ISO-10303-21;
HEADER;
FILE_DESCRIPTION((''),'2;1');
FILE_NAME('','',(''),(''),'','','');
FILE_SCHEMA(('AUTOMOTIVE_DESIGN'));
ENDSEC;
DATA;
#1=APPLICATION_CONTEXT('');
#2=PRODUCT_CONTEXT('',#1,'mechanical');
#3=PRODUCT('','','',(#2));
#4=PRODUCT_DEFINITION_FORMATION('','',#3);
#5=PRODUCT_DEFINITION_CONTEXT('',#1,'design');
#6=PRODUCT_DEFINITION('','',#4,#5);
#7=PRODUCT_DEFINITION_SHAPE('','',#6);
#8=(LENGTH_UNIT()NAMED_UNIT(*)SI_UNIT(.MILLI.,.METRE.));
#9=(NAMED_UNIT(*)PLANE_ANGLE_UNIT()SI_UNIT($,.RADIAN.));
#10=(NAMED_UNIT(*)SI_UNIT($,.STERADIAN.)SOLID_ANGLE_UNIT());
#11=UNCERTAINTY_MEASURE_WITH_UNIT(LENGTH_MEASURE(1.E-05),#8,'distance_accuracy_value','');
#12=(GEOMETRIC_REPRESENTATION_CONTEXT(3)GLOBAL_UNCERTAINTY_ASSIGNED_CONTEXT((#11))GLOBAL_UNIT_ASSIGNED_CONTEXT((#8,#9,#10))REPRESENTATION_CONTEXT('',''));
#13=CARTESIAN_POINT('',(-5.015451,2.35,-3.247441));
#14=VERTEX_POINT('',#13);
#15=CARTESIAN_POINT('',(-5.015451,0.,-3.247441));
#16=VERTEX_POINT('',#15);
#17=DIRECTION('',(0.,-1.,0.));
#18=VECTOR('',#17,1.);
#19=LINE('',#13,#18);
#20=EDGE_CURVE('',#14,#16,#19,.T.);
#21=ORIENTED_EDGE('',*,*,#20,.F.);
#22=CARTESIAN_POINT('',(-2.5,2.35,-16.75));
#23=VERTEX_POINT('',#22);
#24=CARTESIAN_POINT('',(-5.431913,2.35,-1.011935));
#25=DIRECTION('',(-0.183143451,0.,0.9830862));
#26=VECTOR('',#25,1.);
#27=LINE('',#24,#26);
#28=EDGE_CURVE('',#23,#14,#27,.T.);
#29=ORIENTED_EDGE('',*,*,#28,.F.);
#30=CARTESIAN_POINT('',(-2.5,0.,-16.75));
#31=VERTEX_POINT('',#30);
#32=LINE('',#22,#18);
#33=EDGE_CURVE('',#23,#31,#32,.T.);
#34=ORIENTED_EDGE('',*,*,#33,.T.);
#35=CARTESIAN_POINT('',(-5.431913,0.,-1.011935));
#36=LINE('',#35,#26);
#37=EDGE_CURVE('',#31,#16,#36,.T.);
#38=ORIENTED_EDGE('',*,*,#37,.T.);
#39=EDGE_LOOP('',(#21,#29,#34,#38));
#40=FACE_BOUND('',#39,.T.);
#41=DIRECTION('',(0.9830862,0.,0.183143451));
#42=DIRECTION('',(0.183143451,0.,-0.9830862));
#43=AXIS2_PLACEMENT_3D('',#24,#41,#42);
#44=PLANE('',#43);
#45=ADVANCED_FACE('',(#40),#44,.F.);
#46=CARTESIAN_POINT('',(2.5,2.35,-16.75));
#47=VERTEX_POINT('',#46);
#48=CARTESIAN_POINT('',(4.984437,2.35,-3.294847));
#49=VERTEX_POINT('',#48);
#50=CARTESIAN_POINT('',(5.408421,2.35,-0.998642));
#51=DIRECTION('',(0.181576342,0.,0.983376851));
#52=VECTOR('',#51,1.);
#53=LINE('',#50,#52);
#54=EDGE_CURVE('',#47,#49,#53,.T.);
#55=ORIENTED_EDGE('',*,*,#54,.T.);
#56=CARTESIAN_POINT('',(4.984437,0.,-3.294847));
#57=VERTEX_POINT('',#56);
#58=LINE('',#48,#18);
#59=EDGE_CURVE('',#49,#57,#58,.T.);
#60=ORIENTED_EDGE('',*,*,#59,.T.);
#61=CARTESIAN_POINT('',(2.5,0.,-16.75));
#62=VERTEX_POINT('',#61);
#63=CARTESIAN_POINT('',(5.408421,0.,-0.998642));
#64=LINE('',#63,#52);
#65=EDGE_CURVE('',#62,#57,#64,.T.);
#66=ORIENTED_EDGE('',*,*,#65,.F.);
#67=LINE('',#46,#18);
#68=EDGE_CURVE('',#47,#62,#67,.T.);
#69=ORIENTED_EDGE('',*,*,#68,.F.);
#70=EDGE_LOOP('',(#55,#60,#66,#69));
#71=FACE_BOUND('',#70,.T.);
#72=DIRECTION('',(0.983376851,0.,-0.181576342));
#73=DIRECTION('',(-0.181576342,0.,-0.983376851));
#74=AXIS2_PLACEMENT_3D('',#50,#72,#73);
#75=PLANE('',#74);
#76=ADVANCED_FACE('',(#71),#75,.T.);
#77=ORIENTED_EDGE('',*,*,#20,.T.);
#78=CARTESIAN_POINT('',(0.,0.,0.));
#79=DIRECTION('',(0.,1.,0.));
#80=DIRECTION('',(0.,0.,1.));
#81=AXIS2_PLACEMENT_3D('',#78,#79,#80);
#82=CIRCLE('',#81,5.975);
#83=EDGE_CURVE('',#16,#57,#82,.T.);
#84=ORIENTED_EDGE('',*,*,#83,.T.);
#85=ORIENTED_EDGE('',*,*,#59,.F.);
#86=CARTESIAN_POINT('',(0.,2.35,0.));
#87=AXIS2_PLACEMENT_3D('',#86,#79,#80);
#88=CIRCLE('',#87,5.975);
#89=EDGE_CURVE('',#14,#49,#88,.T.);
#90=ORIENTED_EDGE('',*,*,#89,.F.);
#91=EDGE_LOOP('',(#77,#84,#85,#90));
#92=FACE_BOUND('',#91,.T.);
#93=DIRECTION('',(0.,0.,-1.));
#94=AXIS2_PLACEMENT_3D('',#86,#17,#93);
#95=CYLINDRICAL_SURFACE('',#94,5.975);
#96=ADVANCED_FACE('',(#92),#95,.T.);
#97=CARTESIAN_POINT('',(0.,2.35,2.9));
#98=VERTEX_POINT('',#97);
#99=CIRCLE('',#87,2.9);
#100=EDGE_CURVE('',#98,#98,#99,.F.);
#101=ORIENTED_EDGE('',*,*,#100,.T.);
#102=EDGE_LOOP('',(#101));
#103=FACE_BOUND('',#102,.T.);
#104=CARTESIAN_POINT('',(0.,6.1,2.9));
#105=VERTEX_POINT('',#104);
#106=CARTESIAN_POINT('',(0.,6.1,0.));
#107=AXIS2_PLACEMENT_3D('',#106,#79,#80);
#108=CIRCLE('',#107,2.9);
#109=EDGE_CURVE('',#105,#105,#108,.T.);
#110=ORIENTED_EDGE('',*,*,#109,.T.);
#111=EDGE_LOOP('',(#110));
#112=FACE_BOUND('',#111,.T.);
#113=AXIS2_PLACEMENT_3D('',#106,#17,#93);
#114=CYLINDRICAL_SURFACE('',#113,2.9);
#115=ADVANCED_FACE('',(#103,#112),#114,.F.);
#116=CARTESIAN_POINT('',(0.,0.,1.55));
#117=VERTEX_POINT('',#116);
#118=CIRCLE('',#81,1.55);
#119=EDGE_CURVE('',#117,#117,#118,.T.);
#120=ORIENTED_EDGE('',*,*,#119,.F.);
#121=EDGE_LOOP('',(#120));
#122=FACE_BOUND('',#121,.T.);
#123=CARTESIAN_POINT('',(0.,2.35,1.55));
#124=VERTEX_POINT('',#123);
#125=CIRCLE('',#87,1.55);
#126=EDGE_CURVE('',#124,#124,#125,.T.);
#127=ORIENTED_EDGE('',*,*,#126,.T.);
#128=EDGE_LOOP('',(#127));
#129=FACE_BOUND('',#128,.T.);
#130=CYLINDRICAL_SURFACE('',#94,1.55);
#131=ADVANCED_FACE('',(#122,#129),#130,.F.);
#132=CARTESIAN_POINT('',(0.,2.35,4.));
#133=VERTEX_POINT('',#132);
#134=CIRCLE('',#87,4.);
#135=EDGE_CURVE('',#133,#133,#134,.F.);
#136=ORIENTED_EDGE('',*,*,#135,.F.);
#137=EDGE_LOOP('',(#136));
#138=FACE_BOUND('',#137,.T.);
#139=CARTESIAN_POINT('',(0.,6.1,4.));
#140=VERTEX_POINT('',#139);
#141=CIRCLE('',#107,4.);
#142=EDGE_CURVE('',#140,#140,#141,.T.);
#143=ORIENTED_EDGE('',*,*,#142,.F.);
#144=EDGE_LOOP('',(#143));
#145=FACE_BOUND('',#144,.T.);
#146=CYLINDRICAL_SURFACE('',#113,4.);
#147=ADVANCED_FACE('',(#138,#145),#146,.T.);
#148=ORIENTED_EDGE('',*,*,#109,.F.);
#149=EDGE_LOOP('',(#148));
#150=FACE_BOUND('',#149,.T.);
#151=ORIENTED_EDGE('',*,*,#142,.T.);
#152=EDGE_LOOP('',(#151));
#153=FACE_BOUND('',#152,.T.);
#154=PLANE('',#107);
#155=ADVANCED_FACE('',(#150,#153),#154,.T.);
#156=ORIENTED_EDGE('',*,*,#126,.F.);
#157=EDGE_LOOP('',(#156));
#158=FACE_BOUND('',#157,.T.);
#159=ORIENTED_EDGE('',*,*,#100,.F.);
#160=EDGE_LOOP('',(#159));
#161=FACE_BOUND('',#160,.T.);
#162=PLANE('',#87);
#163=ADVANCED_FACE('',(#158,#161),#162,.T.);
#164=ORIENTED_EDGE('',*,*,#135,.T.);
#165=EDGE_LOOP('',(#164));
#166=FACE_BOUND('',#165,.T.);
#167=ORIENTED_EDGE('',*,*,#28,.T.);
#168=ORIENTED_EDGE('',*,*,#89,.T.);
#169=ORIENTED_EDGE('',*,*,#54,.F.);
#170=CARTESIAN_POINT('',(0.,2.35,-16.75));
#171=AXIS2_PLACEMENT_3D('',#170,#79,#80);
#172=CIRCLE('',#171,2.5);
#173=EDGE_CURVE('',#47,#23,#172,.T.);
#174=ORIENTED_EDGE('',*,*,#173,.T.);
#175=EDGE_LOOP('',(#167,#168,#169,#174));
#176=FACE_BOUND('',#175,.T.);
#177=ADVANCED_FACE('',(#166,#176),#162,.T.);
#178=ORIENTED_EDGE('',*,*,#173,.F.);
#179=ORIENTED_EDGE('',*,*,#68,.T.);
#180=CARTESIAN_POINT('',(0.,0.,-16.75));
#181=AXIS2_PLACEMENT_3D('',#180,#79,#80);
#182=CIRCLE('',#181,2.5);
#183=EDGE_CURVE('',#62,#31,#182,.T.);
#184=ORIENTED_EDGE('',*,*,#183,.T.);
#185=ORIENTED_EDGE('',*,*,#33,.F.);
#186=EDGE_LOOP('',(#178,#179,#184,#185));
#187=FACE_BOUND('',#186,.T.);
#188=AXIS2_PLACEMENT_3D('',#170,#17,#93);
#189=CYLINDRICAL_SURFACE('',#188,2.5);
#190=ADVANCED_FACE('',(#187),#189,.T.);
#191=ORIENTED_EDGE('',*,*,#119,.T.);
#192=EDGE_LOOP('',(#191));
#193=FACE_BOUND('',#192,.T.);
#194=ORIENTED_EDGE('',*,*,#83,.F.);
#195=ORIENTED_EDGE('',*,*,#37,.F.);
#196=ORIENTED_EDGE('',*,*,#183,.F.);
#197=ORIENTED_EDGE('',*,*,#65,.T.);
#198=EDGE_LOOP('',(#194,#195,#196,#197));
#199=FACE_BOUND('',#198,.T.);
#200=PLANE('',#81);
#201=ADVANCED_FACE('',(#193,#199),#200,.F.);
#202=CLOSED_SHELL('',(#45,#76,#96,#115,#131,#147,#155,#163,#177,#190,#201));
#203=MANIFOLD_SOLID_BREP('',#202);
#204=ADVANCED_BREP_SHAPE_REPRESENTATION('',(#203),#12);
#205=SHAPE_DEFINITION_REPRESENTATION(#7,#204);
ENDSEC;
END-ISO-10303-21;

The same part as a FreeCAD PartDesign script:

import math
import FreeCAD as App
import Part
import Sketcher

doc = App.newDocument("Part")
body = doc.addObject("PartDesign::Body", "Body")

sketch1 = body.newObject("Sketcher::SketchObject", "Sketch")
sketch1.AttachmentSupport = (doc.getObject("XZ_Plane"), [""])
sketch1.MapMode = "FlatFace"
sketch1.addGeometry(Part.LineSegment(App.Vector(-2.5, -16.75, 0), App.Vector(-5.015451, -3.247441, 0)), False)
sketch1.addGeometry(Part.ArcOfCircle(Part.Circle(App.Vector(0, 0, 0), App.Vector(0, 0, 1), 5.975), math.radians(-33.465778), math.radians(212.92255)), False)
sketch1.addGeometry(Part.LineSegment(App.Vector(4.984437, -3.294847, 0), App.Vector(2.5, -16.75, 0)), False)
sketch1.addGeometry(Part.ArcOfCircle(Part.Circle(App.Vector(0, -16.75, 0), App.Vector(0, 0, 1), 2.5), math.radians(180), math.radians(360)), False)
sketch1.addGeometry(Part.Circle(App.Vector(0, 0, 0), App.Vector(0, 0, 1), 1.55), False)
sketch1.addConstraint(Sketcher.Constraint("Coincident", 0, 2, 1, 2))
sketch1.addConstraint(Sketcher.Constraint("Coincident", 1, 1, 2, 1))
sketch1.addConstraint(Sketcher.Constraint("Coincident", 2, 2, 3, 2))
sketch1.addConstraint(Sketcher.Constraint("Coincident", 3, 1, 0, 1))
sketch1.addConstraint(Sketcher.Constraint("Coincident", 1, 3, -1, 1))
sketch1.addConstraint(Sketcher.Constraint("Coincident", 4, 3, -1, 1))
sketch1.addConstraint(Sketcher.Constraint("Symmetric", 2, 2, 3, 1, -2))
sketch1.addConstraint(Sketcher.Constraint("Horizontal", 3, 3, 2, 2))
sketch1.addConstraint(Sketcher.Constraint("Diameter", 4, 3.1))
sketch1.addConstraint(Sketcher.Constraint("Radius", 3, 2.5))
sketch1.addConstraint(Sketcher.Constraint("Radius", 1, 5.975))
sketch1.addConstraint(Sketcher.Constraint("DistanceY", 3, 3, -1, 1, 16.75))
sketch1.addConstraint(Sketcher.Constraint("Distance", 2, 13.682601))
sketch1.addConstraint(Sketcher.Constraint("DistanceX", 0, 2, -1, 1, 5.015451))
pad1 = body.newObject("PartDesign::Pad", "Pad")
pad1.Profile = sketch1
pad1.Length = 2.35
pad1.Reversed = True

sketch2 = body.newObject("Sketcher::SketchObject", "Sketch001")
sketch2.AttachmentSupport = (doc.getObject("XZ_Plane"), [""])
sketch2.MapMode = "FlatFace"
sketch2.addGeometry(Part.Circle(App.Vector(0, 0, 0), App.Vector(0, 0, 1), 4), False)
sketch2.addGeometry(Part.Circle(App.Vector(0, 0, 0), App.Vector(0, 0, 1), 2.9), False)
sketch2.addConstraint(Sketcher.Constraint("Coincident", 0, 3, -1, 1))
sketch2.addConstraint(Sketcher.Constraint("Coincident", 1, 3, -1, 1))
sketch2.addConstraint(Sketcher.Constraint("Diameter", 0, 8.0))
sketch2.addConstraint(Sketcher.Constraint("Diameter", 1, 5.8))
pad2 = body.newObject("PartDesign::Pad", "Pad001")
pad2.Profile = sketch2
pad2.Length = 6.1
pad2.Reversed = True

doc.recompute()
